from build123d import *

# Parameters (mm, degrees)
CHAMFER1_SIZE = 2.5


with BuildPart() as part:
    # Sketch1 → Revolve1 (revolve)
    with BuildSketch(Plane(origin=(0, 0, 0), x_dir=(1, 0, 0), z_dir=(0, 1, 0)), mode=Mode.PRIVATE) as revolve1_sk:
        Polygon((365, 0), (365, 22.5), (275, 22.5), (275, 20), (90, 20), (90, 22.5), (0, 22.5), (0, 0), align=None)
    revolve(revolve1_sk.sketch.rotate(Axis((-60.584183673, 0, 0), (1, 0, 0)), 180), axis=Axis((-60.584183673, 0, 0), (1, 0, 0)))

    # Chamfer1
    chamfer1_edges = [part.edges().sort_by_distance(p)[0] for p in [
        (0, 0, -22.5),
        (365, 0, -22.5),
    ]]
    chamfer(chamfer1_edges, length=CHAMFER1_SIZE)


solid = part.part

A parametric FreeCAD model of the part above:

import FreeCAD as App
import Part
import Sketcher

V = App.Vector


def edges_at(feature, points):
    """Names of the edges that pass closest to the given points."""
    edges = feature.Shape.Edges
    near = lambda p: min(range(len(edges)), key=lambda i: edges[i].distToShape(Part.Vertex(*p))[0])
    return sorted({f"Edge{near(p) + 1}" for p in points})

doc = App.newDocument("Part")
body = doc.addObject("PartDesign::Body", "Body")

sketch1 = body.newObject("Sketcher::SketchObject", "Sketch")
sketch1.AttachmentSupport = (doc.getObject("XZ_Plane"), [""])
sketch1.MapMode = "FlatFace"
sketch1.addGeometry(Part.LineSegment(V(365, 0, 0), V(365, -22.5, 0)), False)
sketch1.addGeometry(Part.LineSegment(V(365, -22.5, 0), V(275, -22.5, 0)), False)
sketch1.addGeometry(Part.LineSegment(V(275, -22.5, 0), V(275, -20, 0)), False)
sketch1.addGeometry(Part.LineSegment(V(275, -20, 0), V(90, -20, 0)), False)
sketch1.addGeometry(Part.LineSegment(V(90, -20, 0), V(90, -22.5, 0)), False)
sketch1.addGeometry(Part.LineSegment(V(90, -22.5, 0), V(0, -22.5, 0)), False)
sketch1.addGeometry(Part.LineSegment(V(0, -22.5, 0), V(0, 0, 0)), False)
sketch1.addGeometry(Part.LineSegment(V(0, 0, 0), V(365, 0, 0)), False)
sketch1.addConstraint(Sketcher.Constraint("Coincident", 0, 2, 1, 1))
sketch1.addConstraint(Sketcher.Constraint("Coincident", 1, 2, 2, 1))
sketch1.addConstraint(Sketcher.Constraint("Coincident", 2, 2, 3, 1))
sketch1.addConstraint(Sketcher.Constraint("Coincident", 3, 2, 4, 1))
sketch1.addConstraint(Sketcher.Constraint("Coincident", 4, 2, 5, 1))
sketch1.addConstraint(Sketcher.Constraint("Coincident", 5, 2, 6, 1))
sketch1.addConstraint(Sketcher.Constraint("Coincident", 6, 2, 7, 1))
sketch1.addConstraint(Sketcher.Constraint("Coincident", 7, 2, 0, 1))
sketch1.addConstraint(Sketcher.Constraint("Vertical", 0))
sketch1.addConstraint(Sketcher.Constraint("Horizontal", 1))
sketch1.addConstraint(Sketcher.Constraint("Vertical", 2))
sketch1.addConstraint(Sketcher.Constraint("Horizontal", 3))
sketch1.addConstraint(Sketcher.Constraint("Vertical", 4))
sketch1.addConstraint(Sketcher.Constraint("Horizontal", 5))
sketch1.addConstraint(Sketcher.Constraint("Vertical", 6))
sketch1.addConstraint(Sketcher.Constraint("Horizontal", 7))
sketch1.addConstraint(Sketcher.Constraint("Coincident", 6, 2, -1, 1))
sketch1.addConstraint(Sketcher.Constraint("Horizontal", 1, 2, 4, 2))
sketch1.addConstraint(Sketcher.Constraint("Equal", 1, 5))
sketch1.addConstraint(Sketcher.Constraint("DistanceX", 1, 2, 1, 1, 90.0))
sketch1.addConstraint(Sketcher.Constraint("DistanceX", 3, 2, 3, 1, 185.0))
sketch1.addConstraint(Sketcher.Constraint("DistanceY", 0, 2, 0, 1, 22.5))
sketch1.addConstraint(Sketcher.Constraint("DistanceY", 2, 1, 2, 2, 2.5))
revolution = body.newObject("PartDesign::Revolution", "Revolution")
revolution.Profile = sketch1
revolution.ReferenceAxis = (sketch1, ["H_Axis"])
revolution.Angle = 360
doc.recompute()

chamfer = body.newObject("PartDesign::Chamfer", "Chamfer")
chamfer.Base = (revolution, edges_at(revolution, [(0, 0, -22.5), (365, 0, -22.5)]))
chamfer.Size = 2.5

doc.recompute()
